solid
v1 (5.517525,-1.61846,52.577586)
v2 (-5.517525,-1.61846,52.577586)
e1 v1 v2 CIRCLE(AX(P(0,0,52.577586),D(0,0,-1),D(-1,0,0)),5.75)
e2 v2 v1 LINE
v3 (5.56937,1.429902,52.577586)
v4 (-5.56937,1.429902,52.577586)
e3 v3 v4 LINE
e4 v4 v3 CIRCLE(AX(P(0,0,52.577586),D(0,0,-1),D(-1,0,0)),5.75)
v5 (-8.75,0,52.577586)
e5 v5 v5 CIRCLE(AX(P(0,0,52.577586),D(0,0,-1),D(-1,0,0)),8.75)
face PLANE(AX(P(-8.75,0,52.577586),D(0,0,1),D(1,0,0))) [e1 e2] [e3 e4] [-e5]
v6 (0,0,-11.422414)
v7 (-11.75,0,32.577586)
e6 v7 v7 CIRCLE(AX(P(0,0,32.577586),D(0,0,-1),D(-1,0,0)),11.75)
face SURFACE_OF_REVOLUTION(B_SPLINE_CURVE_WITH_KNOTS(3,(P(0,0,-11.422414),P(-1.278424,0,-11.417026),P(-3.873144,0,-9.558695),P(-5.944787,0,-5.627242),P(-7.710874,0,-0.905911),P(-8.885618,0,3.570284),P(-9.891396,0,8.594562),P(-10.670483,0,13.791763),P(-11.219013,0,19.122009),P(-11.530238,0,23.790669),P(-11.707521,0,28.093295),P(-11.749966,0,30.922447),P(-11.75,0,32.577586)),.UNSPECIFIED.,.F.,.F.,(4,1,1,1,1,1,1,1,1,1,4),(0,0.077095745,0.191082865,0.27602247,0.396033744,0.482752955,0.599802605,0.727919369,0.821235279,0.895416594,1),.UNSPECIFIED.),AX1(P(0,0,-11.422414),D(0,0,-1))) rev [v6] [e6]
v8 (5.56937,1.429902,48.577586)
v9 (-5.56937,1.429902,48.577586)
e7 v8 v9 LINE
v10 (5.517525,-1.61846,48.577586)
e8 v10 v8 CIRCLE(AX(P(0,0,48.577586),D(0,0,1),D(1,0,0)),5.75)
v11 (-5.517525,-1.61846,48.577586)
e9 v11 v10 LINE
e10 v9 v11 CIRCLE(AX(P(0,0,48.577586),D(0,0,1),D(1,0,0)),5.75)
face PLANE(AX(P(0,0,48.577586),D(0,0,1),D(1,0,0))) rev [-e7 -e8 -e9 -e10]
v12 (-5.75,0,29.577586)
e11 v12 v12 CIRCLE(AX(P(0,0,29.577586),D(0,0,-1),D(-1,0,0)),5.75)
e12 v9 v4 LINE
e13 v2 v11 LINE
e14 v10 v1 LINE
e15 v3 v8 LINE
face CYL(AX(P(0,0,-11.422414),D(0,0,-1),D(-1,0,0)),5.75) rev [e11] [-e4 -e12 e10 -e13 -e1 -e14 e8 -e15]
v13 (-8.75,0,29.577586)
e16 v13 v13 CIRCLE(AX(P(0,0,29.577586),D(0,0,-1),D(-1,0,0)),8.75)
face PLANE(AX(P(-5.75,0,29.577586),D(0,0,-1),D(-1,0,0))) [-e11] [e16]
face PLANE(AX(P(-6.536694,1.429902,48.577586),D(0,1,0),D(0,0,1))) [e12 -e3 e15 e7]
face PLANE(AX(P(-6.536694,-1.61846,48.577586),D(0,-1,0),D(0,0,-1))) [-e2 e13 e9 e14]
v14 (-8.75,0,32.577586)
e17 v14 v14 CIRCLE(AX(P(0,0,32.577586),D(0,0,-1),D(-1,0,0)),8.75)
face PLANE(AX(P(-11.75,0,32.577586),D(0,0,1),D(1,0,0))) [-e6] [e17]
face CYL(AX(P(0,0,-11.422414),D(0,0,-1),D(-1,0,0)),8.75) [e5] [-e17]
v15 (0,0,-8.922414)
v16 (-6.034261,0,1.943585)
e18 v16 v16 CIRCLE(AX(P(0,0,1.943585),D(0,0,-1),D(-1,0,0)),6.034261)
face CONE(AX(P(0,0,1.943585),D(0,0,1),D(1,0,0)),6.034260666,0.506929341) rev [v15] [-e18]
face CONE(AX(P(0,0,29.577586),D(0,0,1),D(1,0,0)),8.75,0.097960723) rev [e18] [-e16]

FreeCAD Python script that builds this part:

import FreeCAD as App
import Part
import Sketcher
from FreeCAD import Vector
Q = App.Units.Quantity

doc = App.newDocument("Part")
body = doc.addObject("PartDesign::Body", "Body")

sketch1 = body.newObject("Sketcher::SketchObject", "Sketch")
sketch1.AttachmentSupport = (doc.getObject("XZ_Plane"), [""])
sketch1.MapMode = "FlatFace"
sketch1.addGeometry([
    Part.LineSegment(Vector(0, -8.922414, 0), Vector(0, -11.422414, 0)),
    Part.BSplineCurve([Vector(0, -11.422414, 0), Vector(-1.278424, -11.417026, 0), Vector(-3.873144, -9.558695, 0), Vector(-5.944787, -5.627242, 0), Vector(-7.710874, -0.905911, 0), Vector(-8.885618, 3.570284, 0), Vector(-9.891396, 8.594562, 0), Vector(-10.670483, 13.791763, 0), Vector(-11.219013, 19.122009, 0), Vector(-11.530238, 23.790669, 0), Vector(-11.707521, 28.093295, 0), Vector(-11.749966, 30.922447, 0), Vector(-11.75, 32.577586, 0)], [4, 1, 1, 1, 1, 1, 1, 1, 1, 1, 4], [0, 0.077095745, 0.191082865, 0.27602247, 0.396033744, 0.482752955, 0.599802605, 0.727919369, 0.821235279, 0.895416594, 1], False, 3, [1, 1, 1, 1, 1, 1, 1, 1, 1, 1, 1, 1, 1], False),
    Part.LineSegment(Vector(-11.75, 32.577586, 0), Vector(-8.75, 32.577586, 0)),
    Part.LineSegment(Vector(-8.75, 32.577586, 0), Vector(-8.75, 52.577586, 0)),
    Part.LineSegment(Vector(-8.75, 52.577586, 0), Vector(-5.75, 52.577586, 0)),
    Part.LineSegment(Vector(-5.75, 52.577586, 0), Vector(-5.75, 29.577586, 0)),
    Part.LineSegment(Vector(-5.75, 29.577586, 0), Vector(-8.75, 29.577586, 0)),
    Part.LineSegment(Vector(-8.75, 29.577586, 0), Vector(-6.034261, 1.943585, 0)),
    Part.LineSegment(Vector(-6.034261, 1.943585, 0), Vector(0, -8.922414, 0)),
], False)
sketch1.addConstraint([
    Sketcher.Constraint("Block", 1),
    Sketcher.Constraint("Coincident", 0, 2, 1, 1),
    Sketcher.Constraint("Coincident", 1, 2, 2, 1),
    Sketcher.Constraint("Coincident", 2, 2, 3, 1),
    Sketcher.Constraint("Coincident", 3, 2, 4, 1),
    Sketcher.Constraint("Coincident", 4, 2, 5, 1),
    Sketcher.Constraint("Coincident", 5, 2, 6, 1),
    Sketcher.Constraint("Coincident", 6, 2, 7, 1),
    Sketcher.Constraint("Coincident", 7, 2, 8, 1),
    Sketcher.Constraint("Coincident", 8, 2, 0, 1),
    Sketcher.Constraint("Vertical", 0),
    Sketcher.Constraint("Horizontal", 2),
    Sketcher.Constraint("Vertical", 3),
    Sketcher.Constraint("Horizontal", 4),
    Sketcher.Constraint("Vertical", 5),
    Sketcher.Constraint("Horizontal", 6),
    Sketcher.Constraint("Vertical", 3, 2, 6, 2),
    Sketcher.Constraint("Equal", 2, 4),
    Sketcher.Constraint("DistanceX", 2, 1, 2, 2, Q("3 mm")),
    Sketcher.Constraint("DistanceY", 3, 1, 3, 2, Q("20 mm")),
    Sketcher.Constraint("DistanceY", 5, 2, 5, 1, Q("23 mm")),
    Sketcher.Constraint("DistanceY", 0, 2, 0, 1, Q("2.5 mm")),
    Sketcher.Constraint("DistanceY", 0, 2, 7, 2, Q("13.365999 mm")),
    Sketcher.Constraint("DistanceX", 7, 2, -1, 1, Q("6.034261 mm")),
])
revolution = body.newObject("PartDesign::Revolution", "Revolution")
revolution.Profile = sketch1
revolution.ReferenceAxis = (sketch1, ["V_Axis"])
revolution.Angle = 360

sketch2 = body.newObject("Sketcher::SketchObject", "Sketch001")
sketch2.AttachmentSupport = (doc.getObject("XY_Plane"), [""])
sketch2.MapMode = "FlatFace"
sketch2.AttachmentOffset = App.Placement(Vector(0, 0, 52.577586), App.Rotation())
sketch2.addGeometry([
    Part.LineSegment(Vector(-6.5, 1.4, 0), Vector(-6.5, -1.6, 0)),
    Part.LineSegment(Vector(-6.5, -1.6, 0), Vector(6.6, -1.6, 0)),
    Part.LineSegment(Vector(6.6, -1.6, 0), Vector(6.6, 1.4, 0)),
    Part.LineSegment(Vector(6.6, 1.4, 0), Vector(-6.5, 1.4, 0)),
], False)
sketch2.addConstraint([
    Sketcher.Constraint("Coincident", 0, 2, 1, 1),
    Sketcher.Constraint("Coincident", 1, 2, 2, 1),
    Sketcher.Constraint("Coincident", 2, 2, 3, 1),
    Sketcher.Constraint("Coincident", 3, 2, 0, 1),
    Sketcher.Constraint("Vertical", 0),
    Sketcher.Constraint("Horizontal", 1),
    Sketcher.Constraint("Vertical", 2),
    Sketcher.Constraint("Horizontal", 3),
    Sketcher.Constraint("DistanceY", 0, 2, 0, 1, Q("3.048362 mm")),
    Sketcher.Constraint("DistanceY", -1, 1, 2, 2, Q("1.429902 mm")),
    Sketcher.Constraint("DistanceX", 1, 1, 1, 2, Q("13.167667 mm")),
    Sketcher.Constraint("DistanceX", 0, 2, -1, 1, Q("6.536694 mm")),
])
pad1 = body.newObject("PartDesign::Pad", "Pad")
pad1.Profile = sketch2
pad1.Length = 4
pad1.Reversed = True

doc.recompute()
